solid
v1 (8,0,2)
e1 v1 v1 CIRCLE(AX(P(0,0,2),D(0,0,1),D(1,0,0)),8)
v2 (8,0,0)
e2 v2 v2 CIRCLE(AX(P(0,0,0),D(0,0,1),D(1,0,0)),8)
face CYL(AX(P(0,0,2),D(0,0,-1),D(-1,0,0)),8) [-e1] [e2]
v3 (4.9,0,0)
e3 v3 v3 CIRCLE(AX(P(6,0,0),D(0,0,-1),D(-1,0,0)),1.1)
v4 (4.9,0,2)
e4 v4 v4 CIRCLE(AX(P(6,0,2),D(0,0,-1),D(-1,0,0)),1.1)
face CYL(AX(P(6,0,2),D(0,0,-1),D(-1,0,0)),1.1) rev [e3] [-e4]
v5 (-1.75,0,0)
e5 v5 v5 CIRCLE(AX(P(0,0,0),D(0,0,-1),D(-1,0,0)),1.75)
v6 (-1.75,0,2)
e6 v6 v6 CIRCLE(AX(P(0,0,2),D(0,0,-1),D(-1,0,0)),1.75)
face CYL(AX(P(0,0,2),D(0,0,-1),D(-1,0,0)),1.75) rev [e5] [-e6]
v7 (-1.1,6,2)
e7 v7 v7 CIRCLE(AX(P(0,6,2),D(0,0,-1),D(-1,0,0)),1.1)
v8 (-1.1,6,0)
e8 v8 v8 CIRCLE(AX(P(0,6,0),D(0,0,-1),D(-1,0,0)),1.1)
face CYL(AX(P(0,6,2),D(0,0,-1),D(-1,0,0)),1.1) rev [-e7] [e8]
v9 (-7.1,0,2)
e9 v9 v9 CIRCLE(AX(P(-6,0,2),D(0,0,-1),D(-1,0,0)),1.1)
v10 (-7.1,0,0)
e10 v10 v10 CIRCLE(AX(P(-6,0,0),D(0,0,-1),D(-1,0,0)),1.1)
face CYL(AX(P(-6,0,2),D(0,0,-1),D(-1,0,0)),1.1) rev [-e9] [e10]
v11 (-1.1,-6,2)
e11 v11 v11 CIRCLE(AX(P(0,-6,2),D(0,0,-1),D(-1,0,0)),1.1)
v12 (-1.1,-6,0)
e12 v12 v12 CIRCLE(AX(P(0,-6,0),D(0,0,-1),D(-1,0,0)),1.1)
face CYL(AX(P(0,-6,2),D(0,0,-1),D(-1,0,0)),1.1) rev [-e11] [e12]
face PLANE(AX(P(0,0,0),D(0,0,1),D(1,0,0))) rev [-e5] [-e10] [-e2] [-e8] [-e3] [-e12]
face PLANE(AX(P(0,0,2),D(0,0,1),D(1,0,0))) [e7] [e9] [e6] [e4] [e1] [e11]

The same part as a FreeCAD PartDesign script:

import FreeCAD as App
import Part
import Sketcher
Q = App.Units.Quantity

doc = App.newDocument("Part")
body = doc.addObject("PartDesign::Body", "Body")

# Sketch on XY plane
sketch1 = doc.addObject("Sketcher::SketchObject", "Sketch")
body.addObject(sketch1)
sketch1.AttachmentSupport = (doc.XY_Plane, [""])
sketch1.MapMode = "FlatFace"
sketch1.addGeometry(Part.Circle(App.Vector(0, 0, 0), App.Vector(0, 0, 1), 8), False)
sketch1.addConstraint(Sketcher.Constraint("Coincident", 0, 3, -1, 1))
sketch1.addConstraint(Sketcher.Constraint("Diameter", 0, Q("16 mm")))
pad1 = doc.addObject("PartDesign::Pad", "Pad")
body.addObject(pad1)
pad1.Profile = sketch1
pad1.Length = 2

# Sketch on XY plane
sketch2 = doc.addObject("Sketcher::SketchObject", "Sketch001")
body.addObject(sketch2)
sketch2.AttachmentSupport = (doc.XY_Plane, [""])
sketch2.MapMode = "FlatFace"
sketch2.addGeometry(Part.Circle(App.Vector(0, 6, 0), App.Vector(0, 0, 1), 1.1), False)
sketch2.addGeometry(Part.Circle(App.Vector(-6, 0, 0), App.Vector(0, 0, 1), 1.1), False)
sketch2.addGeometry(Part.Circle(App.Vector(0, -6, 0), App.Vector(0, 0, 1), 1.1), False)
sketch2.addGeometry(Part.Circle(App.Vector(6, 0, 0), App.Vector(0, 0, 1), 1.1), False)
sketch2.addGeometry(Part.Circle(App.Vector(0, 0, 0), App.Vector(0, 0, 1), 1.8), False)
sketch2.addConstraint(Sketcher.Constraint("Coincident", 4, 3, -1, 1))
sketch2.addConstraint(Sketcher.Constraint("Equal", 0, 1))
sketch2.addConstraint(Sketcher.Constraint("Equal", 1, 2))
sketch2.addConstraint(Sketcher.Constraint("Equal", 2, 3))
sketch2.addConstraint(Sketcher.Constraint("Symmetric", 0, 3, 2, 3, -1, 1))
sketch2.addConstraint(Sketcher.Constraint("Symmetric", 1, 3, 3, 3, -1, 1))
sketch2.addConstraint(Sketcher.Constraint("PointOnObject", 0, 3, -2))
sketch2.addConstraint(Sketcher.Constraint("PointOnObject", 1, 3, -1))
sketch2.addConstraint(Sketcher.Constraint("Diameter", 0, Q("2.2 mm")))
sketch2.addConstraint(Sketcher.Constraint("Diameter", 4, Q("3.5 mm")))
sketch2.addConstraint(Sketcher.Constraint("DistanceY", -1, 1, 0, 3, Q("6 mm")))
sketch2.addConstraint(Sketcher.Constraint("DistanceX", 1, 3, -1, 1, Q("6 mm")))
pocket1 = doc.addObject("PartDesign::Pocket", "Pocket")
body.addObject(pocket1)
pocket1.Profile = sketch2
pocket1.Type = "ThroughAll"
pocket1.Reversed = True

doc.recompute()
